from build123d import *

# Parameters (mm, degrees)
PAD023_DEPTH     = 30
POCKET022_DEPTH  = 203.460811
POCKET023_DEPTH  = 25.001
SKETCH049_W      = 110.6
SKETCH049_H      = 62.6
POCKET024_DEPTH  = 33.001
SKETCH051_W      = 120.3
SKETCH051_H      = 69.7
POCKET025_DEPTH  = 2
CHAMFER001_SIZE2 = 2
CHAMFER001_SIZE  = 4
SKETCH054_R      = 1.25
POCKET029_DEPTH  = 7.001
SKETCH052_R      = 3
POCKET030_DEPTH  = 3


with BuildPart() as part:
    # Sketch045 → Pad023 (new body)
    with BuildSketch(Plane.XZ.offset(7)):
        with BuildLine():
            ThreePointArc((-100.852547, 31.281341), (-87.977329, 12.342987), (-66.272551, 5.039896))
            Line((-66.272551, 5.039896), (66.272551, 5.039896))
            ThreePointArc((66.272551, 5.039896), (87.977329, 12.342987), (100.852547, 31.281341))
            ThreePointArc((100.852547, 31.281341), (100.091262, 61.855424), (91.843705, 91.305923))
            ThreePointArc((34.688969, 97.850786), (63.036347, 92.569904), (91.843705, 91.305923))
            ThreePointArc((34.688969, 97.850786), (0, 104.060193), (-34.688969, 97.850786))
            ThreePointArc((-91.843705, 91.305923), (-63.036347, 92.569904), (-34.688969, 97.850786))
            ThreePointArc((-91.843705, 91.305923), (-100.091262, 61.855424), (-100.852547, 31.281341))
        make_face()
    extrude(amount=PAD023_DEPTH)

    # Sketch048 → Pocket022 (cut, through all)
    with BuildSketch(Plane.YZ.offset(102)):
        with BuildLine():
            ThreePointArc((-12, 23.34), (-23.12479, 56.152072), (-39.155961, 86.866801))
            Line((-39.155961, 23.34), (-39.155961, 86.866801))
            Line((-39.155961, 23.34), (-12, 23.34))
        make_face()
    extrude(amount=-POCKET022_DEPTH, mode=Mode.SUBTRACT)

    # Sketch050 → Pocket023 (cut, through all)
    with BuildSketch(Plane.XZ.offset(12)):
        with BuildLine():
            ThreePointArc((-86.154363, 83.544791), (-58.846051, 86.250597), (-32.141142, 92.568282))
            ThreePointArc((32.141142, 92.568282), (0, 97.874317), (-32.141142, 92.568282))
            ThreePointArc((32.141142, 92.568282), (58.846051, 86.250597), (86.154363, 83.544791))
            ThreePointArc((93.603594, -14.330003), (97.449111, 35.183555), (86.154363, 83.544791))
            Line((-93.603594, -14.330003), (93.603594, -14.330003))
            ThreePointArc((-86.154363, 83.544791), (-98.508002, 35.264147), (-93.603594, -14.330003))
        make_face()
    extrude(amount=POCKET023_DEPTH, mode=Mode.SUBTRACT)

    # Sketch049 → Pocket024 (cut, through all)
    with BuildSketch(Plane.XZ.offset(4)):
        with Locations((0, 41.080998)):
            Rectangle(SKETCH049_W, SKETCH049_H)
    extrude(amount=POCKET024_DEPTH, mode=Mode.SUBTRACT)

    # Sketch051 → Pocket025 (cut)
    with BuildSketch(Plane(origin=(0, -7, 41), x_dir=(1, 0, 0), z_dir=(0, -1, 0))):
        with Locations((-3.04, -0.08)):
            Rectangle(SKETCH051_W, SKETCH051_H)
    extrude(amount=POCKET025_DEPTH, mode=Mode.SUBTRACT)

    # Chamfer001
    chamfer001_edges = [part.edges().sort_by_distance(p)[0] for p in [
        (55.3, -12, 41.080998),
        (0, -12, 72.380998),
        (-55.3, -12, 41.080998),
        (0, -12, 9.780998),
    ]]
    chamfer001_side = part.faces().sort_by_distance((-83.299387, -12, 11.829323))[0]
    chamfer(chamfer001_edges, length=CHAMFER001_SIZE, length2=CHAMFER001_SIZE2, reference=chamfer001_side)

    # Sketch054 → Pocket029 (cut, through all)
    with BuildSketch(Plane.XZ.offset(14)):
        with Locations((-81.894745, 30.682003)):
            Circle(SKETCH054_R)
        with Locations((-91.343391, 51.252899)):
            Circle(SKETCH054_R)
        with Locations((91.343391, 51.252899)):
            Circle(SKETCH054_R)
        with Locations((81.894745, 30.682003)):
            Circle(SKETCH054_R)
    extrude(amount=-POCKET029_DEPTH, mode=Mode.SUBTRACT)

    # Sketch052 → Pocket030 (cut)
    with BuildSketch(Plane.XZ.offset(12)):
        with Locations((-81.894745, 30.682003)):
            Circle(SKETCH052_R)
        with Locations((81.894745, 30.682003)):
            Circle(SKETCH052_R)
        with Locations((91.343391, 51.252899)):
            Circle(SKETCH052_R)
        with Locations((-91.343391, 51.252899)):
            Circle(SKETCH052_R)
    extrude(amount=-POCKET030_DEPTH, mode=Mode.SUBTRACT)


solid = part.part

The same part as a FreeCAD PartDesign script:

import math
import FreeCAD as App
import Part
import Sketcher
Q = App.Units.Quantity


def edges_at(feature, points):
    """Names of the edges that pass closest to the given points."""
    edges = feature.Shape.Edges
    near = lambda p: min(range(len(edges)), key=lambda i: edges[i].distToShape(Part.Vertex(*p))[0])
    return sorted({f"Edge{near(p) + 1}" for p in points})

doc = App.newDocument("Part")
body = doc.addObject("PartDesign::Body", "Body")

sketch1 = body.newObject("Sketcher::SketchObject", "Sketch")
sketch1.AttachmentSupport = (doc.getObject("XZ_Plane"), [""])
sketch1.MapMode = "FlatFace"
sketch1.AttachmentOffset = App.Placement(App.Vector(0, 0, 7), App.Rotation())
sketch1.addGeometry([
    Part.ArcOfCircle(Part.Circle(App.Vector(-66, 41, 0), App.Vector(0, 0, 1), 36), math.radians(-164), math.radians(-90)),
    Part.LineSegment(App.Vector(-66, 5, 0), App.Vector(66, 5, 0)),
    Part.ArcOfCircle(Part.Circle(App.Vector(66, 41, 0), App.Vector(0, 0, 1), 36), math.radians(-90), math.radians(-16)),
    Part.ArcOfCircle(Part.Circle(App.Vector(-22, 44, 0), App.Vector(0, 0, 1), 124), math.radians(-6), math.radians(23)),
    Part.ArcOfCircle(Part.Circle(App.Vector(86, 297, 0), App.Vector(0, 0, 1), 206), math.radians(-104.57), math.radians(-88.49)),
    Part.ArcOfCircle(Part.Circle(App.Vector(0, 4, 0), App.Vector(0, 0, 1), 100), math.radians(70), math.radians(110)),
    Part.ArcOfCircle(Part.Circle(App.Vector(-86, 297, 0), App.Vector(0, 0, 1), 206), math.radians(-91.51), math.radians(-75.43)),
    Part.ArcOfCircle(Part.Circle(App.Vector(22, 44, 0), App.Vector(0, 0, 1), 124), math.radians(157), math.radians(186)),
], False)
sketch1.addConstraint([
    Sketcher.Constraint("Tangent", 0, 2, 1, 1),
    Sketcher.Constraint("Tangent", 1, 2, 2, 1),
    Sketcher.Constraint("Coincident", 2, 2, 3, 1),
    Sketcher.Constraint("Coincident", 3, 2, 4, 2),
    Sketcher.Constraint("Coincident", 4, 1, 5, 1),
    Sketcher.Constraint("Coincident", 5, 2, 6, 2),
    Sketcher.Constraint("Coincident", 6, 1, 7, 1),
    Sketcher.Constraint("Coincident", 7, 2, 0, 1),
    Sketcher.Constraint("Horizontal", 1),
    Sketcher.Constraint("Equal", 0, 2),
    Sketcher.Constraint("Equal", 4, 6),
    Sketcher.Constraint("Equal", 3, 7),
    Sketcher.Constraint("Symmetric", 4, 3, 6, 3, -2),
    Sketcher.Constraint("Symmetric", 3, 3, 7, 3, -2),
    Sketcher.Constraint("PointOnObject", 5, 3, -2),
    Sketcher.Constraint("Horizontal", 2, 2, 7, 2),
    Sketcher.Constraint("Radius", 0, Q("35.904838 mm")),
    Sketcher.Constraint("Radius", 3, Q("123.558696 mm")),
    Sketcher.Constraint("Radius", 4, Q("205.646884 mm")),
    Sketcher.Constraint("Radius", 5, Q("99.999992 mm")),
    Sketcher.Constraint("DistanceY", -1, 1, 5, 3, Q("4.060201 mm")),
    Sketcher.Constraint("DistanceX", 0, 3, 2, 3, Q("132.545098 mm")),
    Sketcher.Constraint("DistanceY", -1, 1, 3, 3, Q("43.516409 mm")),
    Sketcher.Constraint("DistanceY", -1, 1, 2, 2, Q("31.281341 mm")),
    Sketcher.Constraint("DistanceX", -1, 1, 4, 1, Q("34.688969 mm")),
    Sketcher.Constraint("DistanceX", 3, 3, 4, 3, Q("108.531229 mm")),
    Sketcher.Constraint("DistanceY", 3, 3, 4, 3, Q("253.365189 mm")),
])
pad1 = body.newObject("PartDesign::Pad", "Pad")
pad1.Profile = sketch1
pad1.Length = 30

sketch2 = body.newObject("Sketcher::SketchObject", "Sketch001")
sketch2.AttachmentSupport = (doc.getObject("YZ_Plane"), [""])
sketch2.MapMode = "FlatFace"
sketch2.AttachmentOffset = App.Placement(App.Vector(0, 0, 102), App.Rotation())
sketch2.addGeometry([
    Part.ArcOfCircle(Part.Circle(App.Vector(-230, -32, 0), App.Vector(0, 0, 1), 225), math.radians(14.31), math.radians(31.98)),
    Part.LineSegment(App.Vector(-39, 87, 0), App.Vector(-39, 23, 0)),
    Part.LineSegment(App.Vector(-39, 23, 0), App.Vector(-12, 23, 0)),
], False)
sketch2.addConstraint([
    Sketcher.Constraint("Coincident", 0, 2, 1, 1),
    Sketcher.Constraint("Coincident", 1, 2, 2, 1),
    Sketcher.Constraint("Coincident", 2, 2, 0, 1),
    Sketcher.Constraint("Vertical", 1),
    Sketcher.Constraint("Horizontal", 2),
    Sketcher.Constraint("DistanceX", 2, 2, -1, 1, Q("12 mm")),
    Sketcher.Constraint("DistanceY", -1, 1, 1, 2, Q("23.34 mm")),
    Sketcher.Constraint("DistanceY", 1, 2, 1, 1, Q("63.526801 mm")),
    Sketcher.Constraint("Radius", 0, Q("224.967033 mm")),
    Sketcher.Constraint("DistanceX", 2, 1, 2, 2, Q("27.155961 mm")),
])
pocket1 = body.newObject("PartDesign::Pocket", "Pocket")
pocket1.Profile = sketch2
pocket1.Type = "ThroughAll"

sketch3 = body.newObject("Sketcher::SketchObject", "Sketch002")
sketch3.AttachmentSupport = (doc.getObject("XZ_Plane"), [""])
sketch3.MapMode = "FlatFace"
sketch3.AttachmentOffset = App.Placement(App.Vector(0, 0, 12), App.Rotation())
sketch3.addGeometry([
    Part.ArcOfCircle(Part.Circle(App.Vector(-93, 289, 0), App.Vector(0, 0, 1), 206), math.radians(-88.17), math.radians(-72.86)),
    Part.ArcOfCircle(Part.Circle(App.Vector(45, 24, 0), App.Vector(0, 0, 1), 143), math.radians(156), math.radians(196)),
    Part.LineSegment(App.Vector(-94, -14, 0), App.Vector(94, -14, 0)),
    Part.ArcOfCircle(Part.Circle(App.Vector(-65, 23, 0), App.Vector(0, 0, 1), 162), math.radians(-13), math.radians(22)),
    Part.ArcOfCircle(Part.Circle(App.Vector(93, 289, 0), App.Vector(0, 0, 1), 206), math.radians(-107.14), math.radians(-91.83)),
    Part.ArcOfCircle(Part.Circle(App.Vector(0, -2, 0), App.Vector(0, 0, 1), 100), math.radians(71), math.radians(109)),
], False)
sketch3.addConstraint([
    Sketcher.Constraint("Coincident", 0, 1, 1, 1),
    Sketcher.Constraint("Coincident", 1, 2, 2, 1),
    Sketcher.Constraint("Coincident", 2, 2, 3, 1),
    Sketcher.Constraint("Coincident", 3, 2, 4, 2),
    Sketcher.Constraint("Coincident", 4, 1, 5, 1),
    Sketcher.Constraint("Coincident", 5, 2, 0, 2),
    Sketcher.Constraint("Horizontal", 2),
    Sketcher.Constraint("Equal", 0, 4),
    Sketcher.Constraint("Symmetric", 0, 3, 4, 3, -2),
    Sketcher.Constraint("PointOnObject", 5, 3, -2),
    Sketcher.Constraint("Radius", 5, Q("100.000002 mm")),
    Sketcher.Constraint("Radius", 0, Q("205.646845 mm")),
    Sketcher.Constraint("Radius", 1, Q("143.496572 mm")),
    Sketcher.Constraint("Radius", 3, Q("162.432285 mm")),
    Sketcher.Constraint("DistanceX", 2, 1, 2, 2, Q("187.207188 mm")),
    Sketcher.Constraint("DistanceX", 3, 3, 1, 3, Q("109.089499 mm")),
    Sketcher.Constraint("DistanceY", 3, 3, 0, 3, Q("266.229899 mm")),
    Sketcher.Constraint("DistanceY", 5, 3, 0, 3, Q("291.212102 mm")),
    Sketcher.Constraint("DistanceX", 0, 3, 0, 1, Q("6.577599 mm")),
    Sketcher.Constraint("DistanceX", 0, 3, -1, 1, Q("92.731962 mm")),
    Sketcher.Constraint("DistanceX", -1, 1, 1, 3, Q("44.574751 mm")),
    Sketcher.Constraint("DistanceY", -1, 1, 3, 3, Q("22.856518 mm")),
])
pocket2 = body.newObject("PartDesign::Pocket", "Pocket001")
pocket2.Profile = sketch3
pocket2.Type = "ThroughAll"
pocket2.Reversed = True

sketch4 = body.newObject("Sketcher::SketchObject", "Sketch003")
sketch4.AttachmentSupport = (doc.getObject("XZ_Plane"), [""])
sketch4.MapMode = "FlatFace"
sketch4.AttachmentOffset = App.Placement(App.Vector(0, 0, 4), App.Rotation())
sketch4.addGeometry([
    Part.LineSegment(App.Vector(-55, 72, 0), App.Vector(-55, 10, 0)),
    Part.LineSegment(App.Vector(-55, 10, 0), App.Vector(55, 10, 0)),
    Part.LineSegment(App.Vector(55, 10, 0), App.Vector(55, 72, 0)),
    Part.LineSegment(App.Vector(55, 72, 0), App.Vector(-55, 72, 0)),
], False)
sketch4.addConstraint([
    Sketcher.Constraint("Coincident", 0, 2, 1, 1),
    Sketcher.Constraint("Coincident", 1, 2, 2, 1),
    Sketcher.Constraint("Coincident", 2, 2, 3, 1),
    Sketcher.Constraint("Coincident", 3, 2, 0, 1),
    Sketcher.Constraint("Vertical", 0),
    Sketcher.Constraint("Horizontal", 1),
    Sketcher.Constraint("Vertical", 2),
    Sketcher.Constraint("Horizontal", 3),
    Sketcher.Constraint("DistanceX", 1, 1, 1, 2, Q("110.6 mm")),
    Sketcher.Constraint("DistanceY", 0, 2, 0, 1, Q("62.6 mm")),
    Sketcher.Constraint("DistanceX", 0, 2, -1, 1, Q("55.3 mm")),
    Sketcher.Constraint("DistanceY", -1, 1, 2, 2, Q("72.380998 mm")),
])
pocket3 = body.newObject("PartDesign::Pocket", "Pocket002")
pocket3.Profile = sketch4
pocket3.Type = "ThroughAll"
pocket3.Reversed = True

sketch5 = body.newObject("Sketcher::SketchObject", "Sketch004")
sketch5.AttachmentSupport = (doc.getObject("XZ_Plane"), [""])
sketch5.MapMode = "FlatFace"
sketch5.AttachmentOffset = App.Placement(App.Vector(0, 0, 7), App.Rotation())
sketch5.addGeometry([
    Part.LineSegment(App.Vector(-63, 76, 0), App.Vector(-63, 6, 0)),
    Part.LineSegment(App.Vector(-63, 6, 0), App.Vector(57, 6, 0)),
    Part.LineSegment(App.Vector(57, 6, 0), App.Vector(57, 76, 0)),
    Part.LineSegment(App.Vector(57, 76, 0), App.Vector(-63, 76, 0)),
], False)
sketch5.addConstraint([
    Sketcher.Constraint("Coincident", 0, 2, 1, 1),
    Sketcher.Constraint("Coincident", 1, 2, 2, 1),
    Sketcher.Constraint("Coincident", 2, 2, 3, 1),
    Sketcher.Constraint("Coincident", 3, 2, 0, 1),
    Sketcher.Constraint("Vertical", 0),
    Sketcher.Constraint("Horizontal", 1),
    Sketcher.Constraint("Vertical", 2),
    Sketcher.Constraint("Horizontal", 3),
    Sketcher.Constraint("DistanceX", 1, 1, 1, 2, Q("120.3 mm")),
    Sketcher.Constraint("DistanceY", 0, 2, 0, 1, Q("69.7 mm")),
    Sketcher.Constraint("DistanceX", 0, 2, -1, 1, Q("63.19 mm")),
    Sketcher.Constraint("DistanceY", -1, 1, 0, 2, Q("6.07 mm")),
])
pocket4 = body.newObject("PartDesign::Pocket", "Pocket003")
pocket4.Profile = sketch5
pocket4.Length = 2
pocket4.Reversed = True
doc.recompute()

chamfer = body.newObject("PartDesign::Chamfer", "Chamfer")
chamfer.Base = (pocket4, edges_at(pocket4, [
    (55.3, -12, 41.081),
    (0, -12, 72.381),
    (-55.3, -12, 41.081),
    (0, -12, 9.781),
]))
chamfer.ChamferType = "Two distances"
chamfer.Size = 4
chamfer.Size2 = 2

sketch6 = body.newObject("Sketcher::SketchObject", "Sketch005")
sketch6.AttachmentSupport = (doc.getObject("XZ_Plane"), [""])
sketch6.MapMode = "FlatFace"
sketch6.AttachmentOffset = App.Placement(App.Vector(0, 0, 14), App.Rotation())
sketch6.addGeometry([
    Part.Circle(App.Vector(-81.9, 30.7, 0), App.Vector(0, 0, 1), 1.2),
    Part.Circle(App.Vector(-91.3, 51.3, 0), App.Vector(0, 0, 1), 1.2),
    Part.Circle(App.Vector(91.3, 51.3, 0), App.Vector(0, 0, 1), 1.2),
    Part.Circle(App.Vector(81.9, 30.7, 0), App.Vector(0, 0, 1), 1.2),
], False)
sketch6.addConstraint([
    Sketcher.Constraint("Equal", 0, 1),
    Sketcher.Constraint("Equal", 1, 2),
    Sketcher.Constraint("Equal", 2, 3),
    Sketcher.Constraint("Symmetric", 1, 3, 2, 3, -2),
    Sketcher.Constraint("Symmetric", 0, 3, 3, 3, -2),
    Sketcher.Constraint("Diameter", 0, Q("2.5 mm")),
    Sketcher.Constraint("DistanceY", -1, 1, 1, 3, Q("51.252899 mm")),
    Sketcher.Constraint("DistanceX", 1, 3, -1, 1, Q("91.343391 mm")),
    Sketcher.Constraint("DistanceX", 0, 3, 3, 3, Q("163.78949 mm")),
    Sketcher.Constraint("DistanceY", -1, 1, 0, 3, Q("30.682003 mm")),
])
pocket5 = body.newObject("PartDesign::Pocket", "Pocket004")
pocket5.Profile = sketch6
pocket5.Type = "ThroughAll"

sketch7 = body.newObject("Sketcher::SketchObject", "Sketch006")
sketch7.AttachmentSupport = (doc.getObject("XZ_Plane"), [""])
sketch7.MapMode = "FlatFace"
sketch7.AttachmentOffset = App.Placement(App.Vector(0, 0, 12), App.Rotation())
sketch7.addGeometry([
    Part.Circle(App.Vector(-81.9, 30.7, 0), App.Vector(0, 0, 1), 3),
    Part.Circle(App.Vector(81.9, 30.7, 0), App.Vector(0, 0, 1), 3),
    Part.Circle(App.Vector(91.3, 51.3, 0), App.Vector(0, 0, 1), 3),
    Part.Circle(App.Vector(-91.3, 51.3, 0), App.Vector(0, 0, 1), 3),
], False)
sketch7.addConstraint([
    Sketcher.Constraint("Equal", 0, 1),
    Sketcher.Constraint("Equal", 1, 2),
    Sketcher.Constraint("Equal", 2, 3),
    Sketcher.Constraint("Symmetric", 0, 3, 1, 3, -2),
    Sketcher.Constraint("Symmetric", 2, 3, 3, 3, -2),
    Sketcher.Constraint("Diameter", 0, Q("6 mm")),
    Sketcher.Constraint("DistanceY", -1, 1, 2, 3, Q("51.252899 mm")),
    Sketcher.Constraint("DistanceX", -1, 1, 2, 3, Q("91.343391 mm")),
    Sketcher.Constraint("DistanceX", 0, 3, 1, 3, Q("163.78949 mm")),
    Sketcher.Constraint("DistanceY", -1, 1, 0, 3, Q("30.682003 mm")),
])
pocket6 = body.newObject("PartDesign::Pocket", "Pocket005")
pocket6.Profile = sketch7
pocket6.Length = 3

doc.recompute()
